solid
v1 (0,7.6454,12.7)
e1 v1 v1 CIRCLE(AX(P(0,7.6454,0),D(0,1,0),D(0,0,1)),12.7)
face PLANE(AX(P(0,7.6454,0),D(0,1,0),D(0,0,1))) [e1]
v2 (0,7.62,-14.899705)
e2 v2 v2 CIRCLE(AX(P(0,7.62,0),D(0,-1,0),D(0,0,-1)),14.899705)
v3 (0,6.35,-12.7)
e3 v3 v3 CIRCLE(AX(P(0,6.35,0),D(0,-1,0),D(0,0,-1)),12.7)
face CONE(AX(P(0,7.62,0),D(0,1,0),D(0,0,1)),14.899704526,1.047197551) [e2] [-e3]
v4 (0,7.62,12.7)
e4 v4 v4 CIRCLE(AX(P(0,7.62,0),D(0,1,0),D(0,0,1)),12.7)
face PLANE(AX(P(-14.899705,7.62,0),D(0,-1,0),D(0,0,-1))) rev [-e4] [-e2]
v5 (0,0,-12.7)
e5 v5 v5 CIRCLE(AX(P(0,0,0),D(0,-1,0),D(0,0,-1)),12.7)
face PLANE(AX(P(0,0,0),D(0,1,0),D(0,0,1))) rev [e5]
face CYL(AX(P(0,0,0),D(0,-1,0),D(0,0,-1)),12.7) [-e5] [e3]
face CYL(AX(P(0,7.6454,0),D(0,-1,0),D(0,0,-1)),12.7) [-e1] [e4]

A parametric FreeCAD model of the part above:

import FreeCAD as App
import Part
import Sketcher
Q = App.Units.Quantity


def add_polygon(sketch, points):
    """Adds a closed chain of lines whose ends are joined by coincident constraints."""
    first, n = sketch.GeometryCount, len(points)
    for a, b in zip(points, points[1:] + points[:1]):
        sketch.addGeometry(Part.LineSegment(App.Vector(*a, 0), App.Vector(*b, 0)), False)
    for i in range(n):
        sketch.addConstraint(Sketcher.Constraint("Coincident", first + i, 2, first + (i + 1) % n, 1))

doc = App.newDocument("Part")
body = doc.addObject("PartDesign::Body", "Body")

# Sketch on XY plane
sketch1 = body.newObject("Sketcher::SketchObject", "Sketch")
sketch1.AttachmentSupport = (doc.getObject("XY_Plane"), [""])
sketch1.MapMode = "FlatFace"
add_polygon(sketch1, [(-12.7, 0), (0, 0), (0, 7.6), (-14.9, 7.6), (-12.7, 6.3)])  # lines 0-4
sketch1.addConstraint([
    Sketcher.Constraint("Horizontal", 0),
    Sketcher.Constraint("Vertical", 1),
    Sketcher.Constraint("Horizontal", 2),
    Sketcher.Constraint("Vertical", 4),
    Sketcher.Constraint("Coincident", 0, 2, -1, 1),
    Sketcher.Constraint("DistanceX", 0, 1, 0, 2, Q("0.5 in")),
    Sketcher.Constraint("DistanceY", 1, 1, 1, 2, Q("0.3 in")),
    Sketcher.Constraint("Angle", 3, Q("-30 deg")),
    Sketcher.Constraint("Distance", 3, Q("0.1 in")),
])
revolution = body.newObject("PartDesign::Revolution", "Revolution")
revolution.Profile = sketch1
revolution.ReferenceAxis = (sketch1, ["V_Axis"])
revolution.Angle = 360

# Sketch on XZ plane
sketch2 = body.newObject("Sketcher::SketchObject", "Sketch001")
sketch2.AttachmentSupport = (doc.getObject("XZ_Plane"), [""])
sketch2.MapMode = "FlatFace"
sketch2.AttachmentOffset = App.Placement(App.Vector(0, 0, -0.3 * 25.4), App.Rotation())
sketch2.addGeometry(Part.Circle(App.Vector(0, 0, 0), App.Vector(0, 0, 1), 13), False)
sketch2.addConstraint([
    Sketcher.Constraint("Coincident", 0, 3, -1, 1),
    Sketcher.Constraint("Diameter", 0, Q("1 in")),
])
pad1 = body.newObject("PartDesign::Pad", "Pad")
pad1.Profile = sketch2
pad1.Length = Q("0.001 in")
pad1.Reversed = True

doc.recompute()
